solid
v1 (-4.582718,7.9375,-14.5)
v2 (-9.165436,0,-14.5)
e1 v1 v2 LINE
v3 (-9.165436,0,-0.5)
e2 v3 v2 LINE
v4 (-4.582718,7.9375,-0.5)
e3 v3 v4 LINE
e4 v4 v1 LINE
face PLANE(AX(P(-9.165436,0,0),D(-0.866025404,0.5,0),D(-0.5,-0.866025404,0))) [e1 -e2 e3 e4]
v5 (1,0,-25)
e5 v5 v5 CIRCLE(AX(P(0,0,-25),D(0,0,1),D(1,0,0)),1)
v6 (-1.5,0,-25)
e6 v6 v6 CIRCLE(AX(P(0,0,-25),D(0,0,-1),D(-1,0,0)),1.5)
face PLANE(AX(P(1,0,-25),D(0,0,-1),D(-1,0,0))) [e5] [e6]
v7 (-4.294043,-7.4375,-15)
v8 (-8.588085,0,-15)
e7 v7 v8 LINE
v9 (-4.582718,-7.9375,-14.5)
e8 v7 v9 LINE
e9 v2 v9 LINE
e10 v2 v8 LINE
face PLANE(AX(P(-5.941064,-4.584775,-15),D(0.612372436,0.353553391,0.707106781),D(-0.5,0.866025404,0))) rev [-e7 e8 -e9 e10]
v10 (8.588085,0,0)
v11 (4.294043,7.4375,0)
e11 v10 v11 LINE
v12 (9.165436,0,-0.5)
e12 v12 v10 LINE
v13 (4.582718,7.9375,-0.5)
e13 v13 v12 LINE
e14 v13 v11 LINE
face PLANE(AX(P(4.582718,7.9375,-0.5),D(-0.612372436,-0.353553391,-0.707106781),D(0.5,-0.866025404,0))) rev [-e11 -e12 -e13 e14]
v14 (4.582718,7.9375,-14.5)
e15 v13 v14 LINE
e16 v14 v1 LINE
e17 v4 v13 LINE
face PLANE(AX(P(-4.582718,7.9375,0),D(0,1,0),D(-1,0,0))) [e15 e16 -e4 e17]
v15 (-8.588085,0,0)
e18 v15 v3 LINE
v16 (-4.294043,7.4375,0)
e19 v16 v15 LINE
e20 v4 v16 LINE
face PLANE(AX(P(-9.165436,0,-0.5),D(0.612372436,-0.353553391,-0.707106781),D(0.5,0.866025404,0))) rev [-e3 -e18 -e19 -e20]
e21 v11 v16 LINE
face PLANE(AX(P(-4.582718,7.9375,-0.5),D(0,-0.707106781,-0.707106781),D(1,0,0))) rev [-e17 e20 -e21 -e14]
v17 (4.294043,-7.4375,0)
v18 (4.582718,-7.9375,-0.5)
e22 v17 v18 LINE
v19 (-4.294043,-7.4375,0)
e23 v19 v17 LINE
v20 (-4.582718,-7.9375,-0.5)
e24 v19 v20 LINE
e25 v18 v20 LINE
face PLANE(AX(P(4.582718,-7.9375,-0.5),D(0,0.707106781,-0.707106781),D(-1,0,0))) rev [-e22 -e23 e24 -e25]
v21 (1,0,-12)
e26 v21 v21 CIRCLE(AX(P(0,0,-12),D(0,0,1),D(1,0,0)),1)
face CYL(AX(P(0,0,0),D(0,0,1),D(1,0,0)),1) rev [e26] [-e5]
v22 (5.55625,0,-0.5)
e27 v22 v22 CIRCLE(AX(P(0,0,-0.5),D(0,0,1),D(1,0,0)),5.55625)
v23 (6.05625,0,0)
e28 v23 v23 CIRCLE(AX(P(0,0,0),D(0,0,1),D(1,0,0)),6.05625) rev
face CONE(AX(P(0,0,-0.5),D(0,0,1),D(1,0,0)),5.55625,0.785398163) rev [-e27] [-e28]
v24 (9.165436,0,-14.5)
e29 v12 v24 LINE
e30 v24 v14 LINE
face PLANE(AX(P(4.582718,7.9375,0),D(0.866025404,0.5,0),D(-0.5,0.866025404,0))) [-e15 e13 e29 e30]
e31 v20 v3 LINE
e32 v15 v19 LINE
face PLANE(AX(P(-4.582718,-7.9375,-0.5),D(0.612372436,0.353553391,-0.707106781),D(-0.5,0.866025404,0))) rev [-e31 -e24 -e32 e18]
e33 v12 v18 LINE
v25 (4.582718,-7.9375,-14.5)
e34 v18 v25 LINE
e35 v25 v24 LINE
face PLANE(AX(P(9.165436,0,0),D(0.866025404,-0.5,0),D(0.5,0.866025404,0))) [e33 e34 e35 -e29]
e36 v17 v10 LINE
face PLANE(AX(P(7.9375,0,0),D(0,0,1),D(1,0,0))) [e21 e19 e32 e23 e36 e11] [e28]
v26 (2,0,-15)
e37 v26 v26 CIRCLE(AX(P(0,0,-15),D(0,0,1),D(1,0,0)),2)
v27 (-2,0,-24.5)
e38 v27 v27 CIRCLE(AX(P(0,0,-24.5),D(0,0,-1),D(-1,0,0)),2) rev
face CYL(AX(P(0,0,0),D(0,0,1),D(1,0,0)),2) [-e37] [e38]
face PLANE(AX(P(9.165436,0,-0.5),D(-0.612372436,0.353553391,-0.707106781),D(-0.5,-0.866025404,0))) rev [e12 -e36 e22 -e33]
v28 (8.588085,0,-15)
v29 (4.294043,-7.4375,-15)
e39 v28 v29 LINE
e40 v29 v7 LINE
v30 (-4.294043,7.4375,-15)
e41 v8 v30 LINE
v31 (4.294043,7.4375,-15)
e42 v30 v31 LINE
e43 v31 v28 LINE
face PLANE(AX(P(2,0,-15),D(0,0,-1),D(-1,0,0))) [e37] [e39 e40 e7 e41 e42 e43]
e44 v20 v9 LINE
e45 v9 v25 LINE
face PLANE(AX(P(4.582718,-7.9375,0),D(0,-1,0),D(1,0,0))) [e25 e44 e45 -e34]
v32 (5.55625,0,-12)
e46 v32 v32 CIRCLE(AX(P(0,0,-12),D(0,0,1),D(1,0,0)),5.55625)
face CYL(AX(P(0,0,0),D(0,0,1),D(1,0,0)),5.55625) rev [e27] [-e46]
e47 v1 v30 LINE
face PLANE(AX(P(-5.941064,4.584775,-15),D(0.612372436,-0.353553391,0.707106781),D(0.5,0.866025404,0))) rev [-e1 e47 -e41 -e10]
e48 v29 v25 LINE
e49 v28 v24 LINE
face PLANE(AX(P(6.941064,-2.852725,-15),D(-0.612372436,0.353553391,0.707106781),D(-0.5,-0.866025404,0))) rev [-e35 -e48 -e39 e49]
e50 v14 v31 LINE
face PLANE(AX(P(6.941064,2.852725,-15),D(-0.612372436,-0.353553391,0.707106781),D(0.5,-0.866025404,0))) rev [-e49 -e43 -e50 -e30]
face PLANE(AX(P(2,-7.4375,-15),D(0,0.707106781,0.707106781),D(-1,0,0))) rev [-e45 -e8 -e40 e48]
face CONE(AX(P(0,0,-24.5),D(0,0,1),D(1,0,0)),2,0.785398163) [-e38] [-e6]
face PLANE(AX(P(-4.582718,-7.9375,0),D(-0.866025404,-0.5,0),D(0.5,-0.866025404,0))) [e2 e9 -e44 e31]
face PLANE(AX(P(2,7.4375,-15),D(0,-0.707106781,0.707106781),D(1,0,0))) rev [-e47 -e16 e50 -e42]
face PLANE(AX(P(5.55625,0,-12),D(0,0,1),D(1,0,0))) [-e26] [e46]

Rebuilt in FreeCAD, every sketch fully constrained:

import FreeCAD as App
import Part
import Sketcher
from FreeCAD import Vector
Q = App.Units.Quantity


def edges_at(feature, points):
    """Names of the edges that pass closest to the given points."""
    edges = feature.Shape.Edges
    near = lambda p: min(range(len(edges)), key=lambda i: edges[i].distToShape(Part.Vertex(*p))[0])
    return sorted({f"Edge{near(p) + 1}" for p in points})


def add_polygon(sketch, points):
    """Adds a closed chain of lines whose ends are joined by coincident constraints."""
    first, n = sketch.GeometryCount, len(points)
    for a, b in zip(points, points[1:] + points[:1]):
        sketch.addGeometry(Part.LineSegment(App.Vector(*a, 0), App.Vector(*b, 0)), False)
    for i in range(n):
        sketch.addConstraint(Sketcher.Constraint("Coincident", first + i, 2, first + (i + 1) % n, 1))

doc = App.newDocument("Part")
body = doc.addObject("PartDesign::Body", "Body")

# Sketch on XZ plane
sketch1 = body.newObject("Sketcher::SketchObject", "Sketch")
sketch1.AttachmentSupport = (doc.getObject("XZ_Plane"), [""])
sketch1.MapMode = "FlatFace"
add_polygon(sketch1, [(2, -25), (1, -25), (1, -12), (5.55625, -12), (5.55625, 0), (7.9375, 0), (7.9375, -15), (2, -15)])  # lines 0-7
sketch1.addConstraint(Sketcher.Constraint("Horizontal", 0))
sketch1.addConstraint(Sketcher.Constraint("Vertical", 1))
sketch1.addConstraint(Sketcher.Constraint("Horizontal", 2))
sketch1.addConstraint(Sketcher.Constraint("Vertical", 3))
sketch1.addConstraint(Sketcher.Constraint("Horizontal", 4))
sketch1.addConstraint(Sketcher.Constraint("Vertical", 5))
sketch1.addConstraint(Sketcher.Constraint("Horizontal", 6))
sketch1.addConstraint(Sketcher.Constraint("Vertical", 7))
sketch1.addConstraint(Sketcher.Constraint("PointOnObject", 3, 2, -1))
sketch1.addConstraint(Sketcher.Constraint("DistanceX", 0, 2, 0, 1, Q("1 mm")))
sketch1.addConstraint(Sketcher.Constraint("DistanceY", 1, 1, 1, 2, Q("13 mm")))
sketch1.addConstraint(Sketcher.Constraint("DistanceY", 3, 1, 3, 2, Q("12 mm")))
sketch1.addConstraint(Sketcher.Constraint("DistanceY", 5, 2, 5, 1, Q("15 mm")))
sketch1.addConstraint(Sketcher.Constraint("DistanceX", -1, 1, 0, 2, Q("1 mm")))
sketch1.addConstraint(Sketcher.Constraint("DistanceX", 6, 2, 6, 1, Q("5.9375 mm")))
sketch1.addConstraint(Sketcher.Constraint("DistanceX", 2, 1, 2, 2, Q("4.55625 mm")))
revolution = body.newObject("PartDesign::Revolution", "Revolution")
revolution.Profile = sketch1
revolution.ReferenceAxis = (sketch1, ["V_Axis"])
revolution.Angle = 360

# Sketch on XY plane
sketch2 = body.newObject("Sketcher::SketchObject", "Sketch001")
sketch2.AttachmentSupport = (doc.getObject("XY_Plane"), [""])
sketch2.MapMode = "FlatFace"
sketch2.AttachmentOffset = App.Placement(Vector(0, 0, -15), App.Rotation())
add_polygon(sketch2, [(-9.165436, 0), (-4.582718, 7.9375), (4.582718, 7.9375), (9.165436, 0), (4.582718, -7.9375), (-4.582718, -7.9375)])  # lines 0-5
sketch2.addGeometry(Part.Circle(Vector(0, 0, 0), Vector(0, 0, 1), 5.55625), False)  # 6
sketch2.addConstraint(Sketcher.Constraint("Horizontal", 1))
sketch2.addConstraint(Sketcher.Constraint("Horizontal", 4))
sketch2.addConstraint(Sketcher.Constraint("Coincident", 6, 3, -1, 1))
sketch2.addConstraint(Sketcher.Constraint("Symmetric", 0, 2, 3, 2, -1, 1))
sketch2.addConstraint(Sketcher.Constraint("Symmetric", 2, 2, 5, 2, -1, 1))
sketch2.addConstraint(Sketcher.Constraint("PointOnObject", 2, 2, -1))
sketch2.addConstraint(Sketcher.Constraint("Parallel", 2, 5))
sketch2.addConstraint(Sketcher.Constraint("Vertical", 1, 2, 3, 2))
sketch2.addConstraint(Sketcher.Constraint("Angle", 0, Q("60 deg")))
sketch2.addConstraint(Sketcher.Constraint("Diameter", 6, Q("11.1125 mm")))
sketch2.addConstraint(Sketcher.Constraint("DistanceY", 3, 2, 1, 2, Q("15.875 mm")))
sketch2.addConstraint(Sketcher.Constraint("DistanceX", 1, 1, 1, 2, Q("9.165436 mm")))
pad1 = body.newObject("PartDesign::Pad", "Pad")
pad1.Profile = sketch2
pad1.Length = 15
doc.recompute()

chamfer = body.newObject("PartDesign::Chamfer", "Chamfer")
chamfer.Base = (pad1, edges_at(pad1, [
    (-6.874, -3.969, -15),
    (0, -7.938, -15),
    (6.874, -3.969, -15),
    (6.874, 3.969, -15),
    (0, 7.938, -15),
    (-6.874, 3.969, -15),
    (-6.874, -3.969, 0),
    (0, -7.938, 0),
    (6.874, -3.969, 0),
    (6.874, 3.969, 0),
    (0, 7.938, 0),
    (-6.874, 3.969, 0),
    (-5.556, 0, 0),
    (-2, 0, -25),
]))
chamfer.Size = 0.5

doc.recompute()
